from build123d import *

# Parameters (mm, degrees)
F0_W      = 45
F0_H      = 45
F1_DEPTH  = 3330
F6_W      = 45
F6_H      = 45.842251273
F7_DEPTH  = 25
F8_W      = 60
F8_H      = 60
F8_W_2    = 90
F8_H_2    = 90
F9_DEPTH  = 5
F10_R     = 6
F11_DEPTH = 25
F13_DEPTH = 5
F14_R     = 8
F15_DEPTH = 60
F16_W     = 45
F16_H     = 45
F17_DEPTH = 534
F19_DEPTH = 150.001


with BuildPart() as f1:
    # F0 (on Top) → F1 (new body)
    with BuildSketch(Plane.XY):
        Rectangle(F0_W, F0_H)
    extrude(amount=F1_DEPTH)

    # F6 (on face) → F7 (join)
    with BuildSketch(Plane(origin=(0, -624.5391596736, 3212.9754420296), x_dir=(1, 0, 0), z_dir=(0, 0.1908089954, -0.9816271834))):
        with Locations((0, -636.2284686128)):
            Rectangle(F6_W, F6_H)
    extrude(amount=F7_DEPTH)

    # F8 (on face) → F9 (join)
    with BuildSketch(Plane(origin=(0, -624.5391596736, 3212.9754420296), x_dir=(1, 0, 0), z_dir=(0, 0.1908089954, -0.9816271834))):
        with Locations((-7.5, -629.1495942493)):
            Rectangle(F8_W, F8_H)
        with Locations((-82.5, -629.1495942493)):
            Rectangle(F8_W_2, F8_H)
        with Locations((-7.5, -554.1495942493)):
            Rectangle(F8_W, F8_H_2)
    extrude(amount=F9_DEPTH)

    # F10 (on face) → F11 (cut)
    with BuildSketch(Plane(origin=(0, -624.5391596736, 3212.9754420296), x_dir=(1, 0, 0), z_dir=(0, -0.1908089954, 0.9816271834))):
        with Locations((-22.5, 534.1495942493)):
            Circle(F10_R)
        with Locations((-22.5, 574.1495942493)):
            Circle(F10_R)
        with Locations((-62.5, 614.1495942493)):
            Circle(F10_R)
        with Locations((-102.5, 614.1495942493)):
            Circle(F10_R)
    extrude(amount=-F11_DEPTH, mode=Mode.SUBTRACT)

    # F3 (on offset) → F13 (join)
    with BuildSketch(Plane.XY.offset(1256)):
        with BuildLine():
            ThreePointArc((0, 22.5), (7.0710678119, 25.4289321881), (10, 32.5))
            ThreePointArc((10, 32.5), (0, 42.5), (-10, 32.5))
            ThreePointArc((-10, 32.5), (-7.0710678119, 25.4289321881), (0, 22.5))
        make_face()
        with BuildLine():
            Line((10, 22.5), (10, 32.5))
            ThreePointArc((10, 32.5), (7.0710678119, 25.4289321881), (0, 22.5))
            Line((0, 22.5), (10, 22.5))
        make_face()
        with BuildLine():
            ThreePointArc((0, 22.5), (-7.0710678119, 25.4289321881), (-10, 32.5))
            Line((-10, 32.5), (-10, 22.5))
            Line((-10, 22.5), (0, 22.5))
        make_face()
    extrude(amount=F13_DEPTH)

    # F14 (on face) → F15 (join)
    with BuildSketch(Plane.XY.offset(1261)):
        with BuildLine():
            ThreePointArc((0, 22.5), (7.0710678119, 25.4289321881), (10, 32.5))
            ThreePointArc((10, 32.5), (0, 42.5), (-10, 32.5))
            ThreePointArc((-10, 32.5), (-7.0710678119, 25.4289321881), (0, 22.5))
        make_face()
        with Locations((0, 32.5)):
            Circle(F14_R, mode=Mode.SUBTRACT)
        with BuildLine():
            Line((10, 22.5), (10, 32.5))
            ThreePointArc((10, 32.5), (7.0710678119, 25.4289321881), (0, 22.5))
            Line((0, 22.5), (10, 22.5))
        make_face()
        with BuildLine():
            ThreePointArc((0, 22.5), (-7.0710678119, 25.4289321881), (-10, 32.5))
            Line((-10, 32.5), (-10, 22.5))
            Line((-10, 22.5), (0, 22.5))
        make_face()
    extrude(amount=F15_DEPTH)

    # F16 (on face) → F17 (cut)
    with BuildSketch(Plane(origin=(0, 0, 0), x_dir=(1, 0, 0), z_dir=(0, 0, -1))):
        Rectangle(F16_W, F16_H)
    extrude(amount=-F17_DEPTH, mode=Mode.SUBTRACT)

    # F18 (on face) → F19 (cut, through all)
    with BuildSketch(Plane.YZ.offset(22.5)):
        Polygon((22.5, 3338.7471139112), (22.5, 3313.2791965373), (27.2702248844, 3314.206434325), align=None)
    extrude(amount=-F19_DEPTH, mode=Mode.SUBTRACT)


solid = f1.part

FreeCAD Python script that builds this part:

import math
import FreeCAD as App
import Part
import Sketcher

V = App.Vector
Q = App.Units.Quantity


def add_polygon(sketch, points):
    """Adds a closed chain of lines whose ends are joined by coincident constraints."""
    first, n = sketch.GeometryCount, len(points)
    for a, b in zip(points, points[1:] + points[:1]):
        sketch.addGeometry(Part.LineSegment(App.Vector(*a, 0), App.Vector(*b, 0)), False)
    for i in range(n):
        sketch.addConstraint(Sketcher.Constraint("Coincident", first + i, 2, first + (i + 1) % n, 1))

doc = App.newDocument("Part")
body = doc.addObject("PartDesign::Body", "Body")

# Sketch on XY plane
sketch1 = doc.addObject("Sketcher::SketchObject", "Sketch")
body.addObject(sketch1)
sketch1.AttachmentSupport = (doc.XY_Plane, [""])
sketch1.MapMode = "FlatFace"
add_polygon(sketch1, [(-22, 22), (-22, -22), (22, -22), (22, 22)])  # lines 0-3
sketch1.addConstraint([
    Sketcher.Constraint("Vertical", 0),
    Sketcher.Constraint("Horizontal", 1),
    Sketcher.Constraint("Vertical", 2),
    Sketcher.Constraint("Horizontal", 3),
    Sketcher.Constraint("Symmetric", 0, 2, 2, 2, -1, 1),
    Sketcher.Constraint("Equal", 3, 0),
    Sketcher.Constraint("DistanceX", 1, 1, 1, 2, 45.0),
])
pad1 = doc.addObject("PartDesign::Pad", "Pad")
body.addObject(pad1)
pad1.Profile = sketch1
pad1.Length = 3330

# Sketch on an angled plane
sketch2 = doc.addObject("Sketcher::SketchObject", "Sketch001")
body.addObject(sketch2)
sketch2.Placement = App.Placement(V(0, -624.53916, 3212.975442), App.Rotation(V(1, 0, 0), V(0, -0.981627183, -0.190808995), V(0, 0.190808995, -0.981627183), "ZXY"))
add_polygon(sketch2, [(-22, -613), (-22, -659), (22, -659), (22, -613)])  # lines 0-3
sketch2.addConstraint([
    Sketcher.Constraint("Vertical", 0),
    Sketcher.Constraint("Horizontal", 1),
    Sketcher.Constraint("Vertical", 2),
    Sketcher.Constraint("Horizontal", 3),
    Sketcher.Constraint("DistanceX", 1, 1, 1, 2, 45.0),
    Sketcher.Constraint("DistanceX", 0, 2, -1, 1, 22.5),
    Sketcher.Constraint("DistanceY", 0, 2, 0, 1, 45.842251),
    Sketcher.Constraint("DistanceY", 0, 2, -1, 1, 659.149594),
])
pad2 = doc.addObject("PartDesign::Pad", "Pad001")
body.addObject(pad2)
pad2.Profile = sketch2
pad2.Length = 25

# Sketch on an angled plane
sketch3 = doc.addObject("Sketcher::SketchObject", "Sketch002")
body.addObject(sketch3)
sketch3.Placement = App.Placement(V(0, -624.53916, 3212.975442), App.Rotation(V(1, 0, 0), V(0, -0.981627183, -0.190808995), V(0, 0.190808995, -0.981627183), "ZXY"))
add_polygon(sketch3, [(22, -659), (22, -509), (-38, -509), (-38, -599), (-128, -599), (-128, -659)])  # lines 0-5
sketch3.addConstraint([
    Sketcher.Constraint("Vertical", 0),
    Sketcher.Constraint("Horizontal", 1),
    Sketcher.Constraint("Vertical", 2),
    Sketcher.Constraint("Horizontal", 3),
    Sketcher.Constraint("Vertical", 4),
    Sketcher.Constraint("Horizontal", 5),
    Sketcher.Constraint("Equal", 5, 0),
    Sketcher.Constraint("Equal", 3, 2),
    Sketcher.Constraint("DistanceX", 1, 2, 1, 1, 60.0),
    Sketcher.Constraint("DistanceX", 3, 2, 3, 1, 90.0),
    Sketcher.Constraint("DistanceX", -1, 1, 0, 2, 22.5),
    Sketcher.Constraint("DistanceY", 0, 2, -1, 1, 509.149594),
])
pad3 = doc.addObject("PartDesign::Pad", "Pad002")
body.addObject(pad3)
pad3.Profile = sketch3
pad3.Length = 5

# Sketch on an angled plane
sketch4 = doc.addObject("Sketcher::SketchObject", "Sketch003")
body.addObject(sketch4)
sketch4.Placement = App.Placement(V(0, -624.53916, 3212.975442), App.Rotation(V(1, 0, 0), V(0, 0.981627183, 0.190808995), V(0, -0.190808995, 0.981627183), "ZXY"))
sketch4.addGeometry([
    Part.Circle(V(-22, 534, 0), V(0, 0, 1), 6),
    Part.Circle(V(-22, 574, 0), V(0, 0, 1), 6),
    Part.Circle(V(-62, 614, 0), V(0, 0, 1), 6),
    Part.Circle(V(-102, 614, 0), V(0, 0, 1), 6),
], False)
sketch4.addConstraint([
    Sketcher.Constraint("Equal", 0, 1),
    Sketcher.Constraint("Equal", 1, 2),
    Sketcher.Constraint("Equal", 2, 3),
    Sketcher.Constraint("Horizontal", 2, 3, 3, 3),
    Sketcher.Constraint("Vertical", 0, 3, 1, 3),
    Sketcher.Constraint("Diameter", 0, 12.0),
    Sketcher.Constraint("DistanceY", 0, 3, 1, 3, 40.0),
    Sketcher.Constraint("DistanceX", 2, 3, 1, 3, 40.0),
    Sketcher.Constraint("DistanceY", 1, 3, 2, 3, 40.0),
    Sketcher.Constraint("DistanceX", 3, 3, 2, 3, 40.0),
    Sketcher.Constraint("DistanceX", 0, 3, -1, 1, 22.5),
    Sketcher.Constraint("DistanceY", -1, 1, 0, 3, 534.149594),
])
pocket1 = doc.addObject("PartDesign::Pocket", "Pocket")
body.addObject(pocket1)
pocket1.Profile = sketch4
pocket1.Length = 25

# Sketch on XY plane
sketch5 = doc.addObject("Sketcher::SketchObject", "Sketch004")
body.addObject(sketch5)
sketch5.AttachmentSupport = (doc.XY_Plane, [""])
sketch5.MapMode = "FlatFace"
sketch5.AttachmentOffset = App.Placement(V(0, 0, 1256), App.Rotation())
sketch5.addGeometry([
    Part.ArcOfCircle(Part.Circle(V(0, 32, 0), V(0, 0, 1), 10), math.radians(0), math.radians(180)),
    Part.LineSegment(V(-10, 32, 0), V(-10, 22, 0)),
    Part.LineSegment(V(-10, 22, 0), V(10, 22, 0)),
    Part.LineSegment(V(10, 22, 0), V(10, 32, 0)),
], False)
sketch5.addConstraint([
    Sketcher.Constraint("Tangent", 0, 2, 1, 1),
    Sketcher.Constraint("Coincident", 1, 2, 2, 1),
    Sketcher.Constraint("Coincident", 2, 2, 3, 1),
    Sketcher.Constraint("Tangent", 3, 2, 0, 1),
    Sketcher.Constraint("Vertical", 1),
    Sketcher.Constraint("Horizontal", 2),
    Sketcher.Constraint("Vertical", 3),
    Sketcher.Constraint("PointOnObject", 0, 3, -2),
    Sketcher.Constraint("Radius", 0, 10.0),
    Sketcher.Constraint("DistanceY", 1, 2, 1, 1, 10.0),
    Sketcher.Constraint("DistanceY", -1, 1, 0, 3, 32.5),
])
pad4 = doc.addObject("PartDesign::Pad", "Pad003")
body.addObject(pad4)
pad4.Profile = sketch5
pad4.Length = 5

# Sketch on XY plane
sketch6 = doc.addObject("Sketcher::SketchObject", "Sketch005")
body.addObject(sketch6)
sketch6.AttachmentSupport = (doc.XY_Plane, [""])
sketch6.MapMode = "FlatFace"
sketch6.AttachmentOffset = App.Placement(V(0, 0, 1261), App.Rotation())
sketch6.addGeometry([
    Part.LineSegment(V(10, 22, 0), V(10, 32, 0)),  # 0
    Part.ArcOfCircle(Part.Circle(V(0, 32, 0), V(0, 0, 1), 10), math.radians(0), math.radians(180)),  # 1
    Part.LineSegment(V(-10, 32, 0), V(-10, 22, 0)),  # 2
    Part.LineSegment(V(-10, 22, 0), V(10, 22, 0)),  # 3
    Part.Circle(V(0, 32, 0), V(0, 0, 1), 8),  # 4
], False)
sketch6.addConstraint([
    Sketcher.Constraint("Tangent", 0, 2, 1, 1),
    Sketcher.Constraint("Tangent", 1, 2, 2, 1),
    Sketcher.Constraint("Coincident", 2, 2, 3, 1),
    Sketcher.Constraint("Coincident", 3, 2, 0, 1),
    Sketcher.Constraint("Vertical", 0),
    Sketcher.Constraint("Vertical", 2),
    Sketcher.Constraint("Horizontal", 3),
    Sketcher.Constraint("Coincident", 4, 3, 1, 3),
    Sketcher.Constraint("PointOnObject", 1, 3, -2),
    Sketcher.Constraint("Diameter", 4, 16.0),
    Sketcher.Constraint("Radius", 1, 10.0),
    Sketcher.Constraint("DistanceY", 0, 1, 0, 2, 10.0),
    Sketcher.Constraint("DistanceY", -1, 1, 1, 3, 32.5),
])
pad5 = doc.addObject("PartDesign::Pad", "Pad004")
body.addObject(pad5)
pad5.Profile = sketch6
pad5.Length = 60

# Sketch on XY plane
sketch7 = doc.addObject("Sketcher::SketchObject", "Sketch006")
body.addObject(sketch7)
sketch7.AttachmentSupport = (doc.XY_Plane, [""])
sketch7.MapMode = "FlatFace"
add_polygon(sketch7, [(-22, -22), (-22, 22), (22, 22), (22, -22)])  # lines 0-3
sketch7.addConstraint([
    Sketcher.Constraint("Vertical", 0),
    Sketcher.Constraint("Horizontal", 1),
    Sketcher.Constraint("Vertical", 2),
    Sketcher.Constraint("Horizontal", 3),
    Sketcher.Constraint("Symmetric", 0, 2, 2, 2, -1, 1),
    Sketcher.Constraint("Equal", 3, 0),
    Sketcher.Constraint("DistanceX", 1, 1, 1, 2, 45.0),
])
pocket2 = doc.addObject("PartDesign::Pocket", "Pocket001")
body.addObject(pocket2)
pocket2.Profile = sketch7
pocket2.Length = 534
pocket2.Reversed = True

# Sketch on YZ plane
sketch8 = doc.addObject("Sketcher::SketchObject", "Sketch007")
body.addObject(sketch8)
sketch8.AttachmentSupport = (doc.YZ_Plane, [""])
sketch8.MapMode = "FlatFace"
sketch8.AttachmentOffset = App.Placement(V(0, 0, 22.5), App.Rotation())
add_polygon(sketch8, [(22.5, 3338.7), (22.5, 3313.3), (27.3, 3314.2)])  # lines 0-2
sketch8.addConstraint([
    Sketcher.Constraint("Vertical", 0),
    Sketcher.Constraint("Perpendicular", 1, 2),
    Sketcher.Constraint("Angle", 1, Q("11 deg")),
    Sketcher.Constraint("Distance", 2, 25.0),
    Sketcher.Constraint("DistanceX", -1, 1, 0, 2, 22.5),
    Sketcher.Constraint("DistanceY", -1, 1, 0, 2, 3313.279197),
])
pocket3 = doc.addObject("PartDesign::Pocket", "Pocket002")
body.addObject(pocket3)
pocket3.Profile = sketch8
pocket3.Type = "ThroughAll"

doc.recompute()
